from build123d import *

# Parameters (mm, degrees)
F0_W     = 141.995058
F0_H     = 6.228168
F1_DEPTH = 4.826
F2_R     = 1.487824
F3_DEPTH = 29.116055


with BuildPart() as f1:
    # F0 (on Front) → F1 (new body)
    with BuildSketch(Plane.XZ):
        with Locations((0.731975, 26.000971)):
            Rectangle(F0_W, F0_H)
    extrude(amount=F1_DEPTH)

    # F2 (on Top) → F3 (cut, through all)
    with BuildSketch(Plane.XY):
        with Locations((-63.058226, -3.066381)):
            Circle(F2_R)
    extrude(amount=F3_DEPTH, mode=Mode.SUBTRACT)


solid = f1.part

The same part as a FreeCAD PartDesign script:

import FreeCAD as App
import Part
import Sketcher
from FreeCAD import Vector
Q = App.Units.Quantity


def add_polygon(sketch, points):
    """Adds a closed chain of lines whose ends are joined by coincident constraints."""
    first, n = sketch.GeometryCount, len(points)
    for a, b in zip(points, points[1:] + points[:1]):
        sketch.addGeometry(Part.LineSegment(App.Vector(*a, 0), App.Vector(*b, 0)), False)
    for i in range(n):
        sketch.addConstraint(Sketcher.Constraint("Coincident", first + i, 2, first + (i + 1) % n, 1))

doc = App.newDocument("Part")
body = doc.addObject("PartDesign::Body", "Body")

# Sketch on XZ plane
sketch1 = body.newObject("Sketcher::SketchObject", "Sketch")
sketch1.AttachmentSupport = (doc.getObject("XZ_Plane"), [""])
sketch1.MapMode = "FlatFace"
add_polygon(sketch1, [(-70, 29), (-70, 23), (72, 23), (72, 29)])  # lines 0-3
sketch1.addConstraint([
    Sketcher.Constraint("Vertical", 0),
    Sketcher.Constraint("Horizontal", 1),
    Sketcher.Constraint("Vertical", 2),
    Sketcher.Constraint("Horizontal", 3),
    Sketcher.Constraint("DistanceX", 1, 1, 1, 2, Q("141.995058 mm")),
    Sketcher.Constraint("DistanceY", 0, 2, 0, 1, Q("6.228168 mm")),
    Sketcher.Constraint("DistanceX", 0, 2, -1, 1, Q("70.265554 mm")),
    Sketcher.Constraint("DistanceY", -1, 1, 0, 2, Q("22.886887 mm")),
])
pad1 = body.newObject("PartDesign::Pad", "Pad")
pad1.Profile = sketch1
pad1.Length = Q("0.19 in")

# Sketch on XY plane
sketch2 = body.newObject("Sketcher::SketchObject", "Sketch001")
sketch2.AttachmentSupport = (doc.getObject("XY_Plane"), [""])
sketch2.MapMode = "FlatFace"
sketch2.addGeometry(Part.Circle(Vector(-63.1, -3.1, 0), Vector(0, 0, 1), 1.5), False)
sketch2.addConstraint([
    Sketcher.Constraint("Diameter", 0, Q("2.975648 mm")),
    Sketcher.Constraint("DistanceY", 0, 3, -1, 1, Q("3.066381 mm")),
    Sketcher.Constraint("DistanceX", 0, 3, -1, 1, Q("63.058226 mm")),
])
pocket1 = body.newObject("PartDesign::Pocket", "Pocket")
pocket1.Profile = sketch2
pocket1.Type = "ThroughAll"
pocket1.Reversed = True

doc.recompute()
